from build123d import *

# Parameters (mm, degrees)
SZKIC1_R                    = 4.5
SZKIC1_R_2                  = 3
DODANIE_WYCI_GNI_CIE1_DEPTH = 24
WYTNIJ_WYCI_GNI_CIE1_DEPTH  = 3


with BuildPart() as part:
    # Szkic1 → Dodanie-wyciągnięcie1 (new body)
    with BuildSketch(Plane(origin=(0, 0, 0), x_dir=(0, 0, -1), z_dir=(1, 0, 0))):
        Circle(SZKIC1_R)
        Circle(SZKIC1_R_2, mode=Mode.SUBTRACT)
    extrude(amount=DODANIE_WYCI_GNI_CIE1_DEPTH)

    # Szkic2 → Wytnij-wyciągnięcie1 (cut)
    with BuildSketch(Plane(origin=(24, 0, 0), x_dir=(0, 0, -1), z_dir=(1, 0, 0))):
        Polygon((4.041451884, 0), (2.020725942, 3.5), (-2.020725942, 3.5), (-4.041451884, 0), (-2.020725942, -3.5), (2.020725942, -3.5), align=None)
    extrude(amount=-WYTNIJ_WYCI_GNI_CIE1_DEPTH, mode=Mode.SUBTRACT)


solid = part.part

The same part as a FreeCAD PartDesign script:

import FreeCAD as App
import Part
import Sketcher

V = App.Vector
Q = App.Units.Quantity

doc = App.newDocument("Part")
params = doc.addObject("Spreadsheet::Sheet", "Params")
for row, (alias, value) in enumerate([
    ("sketch1_diameter", "9 mm"),
    ("sketch1_diameter2", "6 mm"),
    ("pad1_length", "24 mm"),
    ("pocket1_length", "3 mm"),
], start=1):
    params.set(f"A{row}", alias)
    params.set(f"B{row}", "=" + value)
    params.setAlias(f"B{row}", alias)

body = doc.addObject("PartDesign::Body", "Body")

# Sketch on YZ plane
sketch1 = body.newObject("Sketcher::SketchObject", "Sketch")
sketch1.AttachmentSupport = (doc.getObject("YZ_Plane"), [""])
sketch1.MapMode = "FlatFace"
sketch1.addGeometry([
    Part.Circle(V(0, 0, 0), V(0, 0, 1), 4.5),
    Part.Circle(V(0, 0, 0), V(0, 0, 1), 3),
], False)
sketch1.addConstraint([
    Sketcher.Constraint("Coincident", 0, 3, -1, 1),
    Sketcher.Constraint("Coincident", 1, 3, -1, 1),
    Sketcher.Constraint("Diameter", 0, Q("9 mm")),
    Sketcher.Constraint("Diameter", 1, Q("6 mm")),
])
sketch1.setExpression("Constraints[2]", "Params.sketch1_diameter")
sketch1.setExpression("Constraints[3]", "Params.sketch1_diameter2")
pad1 = body.newObject("PartDesign::Pad", "Pad")
pad1.Profile = sketch1
pad1.setExpression("Length", "Params.pad1_length")

# Sketch on YZ plane
sketch2 = body.newObject("Sketcher::SketchObject", "Sketch001")
sketch2.AttachmentSupport = (doc.getObject("YZ_Plane"), [""])
sketch2.MapMode = "FlatFace"
sketch2.AttachmentOffset = App.Placement(V(0, 0, 24), App.Rotation())
sketch2.addGeometry([
    Part.LineSegment(V(0, -4, 0), V(3.5, -2, 0)),  # 0
    Part.LineSegment(V(3.5, -2, 0), V(3.5, 2, 0)),  # 1
    Part.LineSegment(V(3.5, 2, 0), V(0, 4, 0)),  # 2
    Part.LineSegment(V(0, 4, 0), V(-3.5, 2, 0)),  # 3
    Part.LineSegment(V(-3.5, 2, 0), V(-3.5, -2, 0)),  # 4
    Part.LineSegment(V(-3.5, -2, 0), V(0, -4, 0)),  # 5
], False)
sketch2.addConstraint([
    Sketcher.Constraint("Coincident", 0, 2, 1, 1),
    Sketcher.Constraint("Coincident", 1, 2, 2, 1),
    Sketcher.Constraint("Coincident", 2, 2, 3, 1),
    Sketcher.Constraint("Coincident", 3, 2, 4, 1),
    Sketcher.Constraint("Coincident", 4, 2, 5, 1),
    Sketcher.Constraint("Coincident", 5, 2, 0, 1),
    Sketcher.Constraint("Vertical", 1),
    Sketcher.Constraint("Vertical", 4),
    Sketcher.Constraint("Symmetric", 0, 2, 3, 2, -1, 1),
    Sketcher.Constraint("Symmetric", 2, 2, 5, 2, -1, 1),
    Sketcher.Constraint("PointOnObject", 2, 2, -2),
    Sketcher.Constraint("Parallel", 2, 5),
    Sketcher.Constraint("Horizontal", 1, 2, 3, 2),
    Sketcher.Constraint("Angle", 0, Q("30 deg")),
    Sketcher.Constraint("DistanceX", 3, 2, 1, 2, Q("7 mm")),
    Sketcher.Constraint("DistanceY", 1, 1, 1, 2, Q("4.041452 mm")),
])
pocket1 = body.newObject("PartDesign::Pocket", "Pocket")
pocket1.Profile = sketch2
pocket1.setExpression("Length", "Params.pocket1_length")

doc.recompute()
